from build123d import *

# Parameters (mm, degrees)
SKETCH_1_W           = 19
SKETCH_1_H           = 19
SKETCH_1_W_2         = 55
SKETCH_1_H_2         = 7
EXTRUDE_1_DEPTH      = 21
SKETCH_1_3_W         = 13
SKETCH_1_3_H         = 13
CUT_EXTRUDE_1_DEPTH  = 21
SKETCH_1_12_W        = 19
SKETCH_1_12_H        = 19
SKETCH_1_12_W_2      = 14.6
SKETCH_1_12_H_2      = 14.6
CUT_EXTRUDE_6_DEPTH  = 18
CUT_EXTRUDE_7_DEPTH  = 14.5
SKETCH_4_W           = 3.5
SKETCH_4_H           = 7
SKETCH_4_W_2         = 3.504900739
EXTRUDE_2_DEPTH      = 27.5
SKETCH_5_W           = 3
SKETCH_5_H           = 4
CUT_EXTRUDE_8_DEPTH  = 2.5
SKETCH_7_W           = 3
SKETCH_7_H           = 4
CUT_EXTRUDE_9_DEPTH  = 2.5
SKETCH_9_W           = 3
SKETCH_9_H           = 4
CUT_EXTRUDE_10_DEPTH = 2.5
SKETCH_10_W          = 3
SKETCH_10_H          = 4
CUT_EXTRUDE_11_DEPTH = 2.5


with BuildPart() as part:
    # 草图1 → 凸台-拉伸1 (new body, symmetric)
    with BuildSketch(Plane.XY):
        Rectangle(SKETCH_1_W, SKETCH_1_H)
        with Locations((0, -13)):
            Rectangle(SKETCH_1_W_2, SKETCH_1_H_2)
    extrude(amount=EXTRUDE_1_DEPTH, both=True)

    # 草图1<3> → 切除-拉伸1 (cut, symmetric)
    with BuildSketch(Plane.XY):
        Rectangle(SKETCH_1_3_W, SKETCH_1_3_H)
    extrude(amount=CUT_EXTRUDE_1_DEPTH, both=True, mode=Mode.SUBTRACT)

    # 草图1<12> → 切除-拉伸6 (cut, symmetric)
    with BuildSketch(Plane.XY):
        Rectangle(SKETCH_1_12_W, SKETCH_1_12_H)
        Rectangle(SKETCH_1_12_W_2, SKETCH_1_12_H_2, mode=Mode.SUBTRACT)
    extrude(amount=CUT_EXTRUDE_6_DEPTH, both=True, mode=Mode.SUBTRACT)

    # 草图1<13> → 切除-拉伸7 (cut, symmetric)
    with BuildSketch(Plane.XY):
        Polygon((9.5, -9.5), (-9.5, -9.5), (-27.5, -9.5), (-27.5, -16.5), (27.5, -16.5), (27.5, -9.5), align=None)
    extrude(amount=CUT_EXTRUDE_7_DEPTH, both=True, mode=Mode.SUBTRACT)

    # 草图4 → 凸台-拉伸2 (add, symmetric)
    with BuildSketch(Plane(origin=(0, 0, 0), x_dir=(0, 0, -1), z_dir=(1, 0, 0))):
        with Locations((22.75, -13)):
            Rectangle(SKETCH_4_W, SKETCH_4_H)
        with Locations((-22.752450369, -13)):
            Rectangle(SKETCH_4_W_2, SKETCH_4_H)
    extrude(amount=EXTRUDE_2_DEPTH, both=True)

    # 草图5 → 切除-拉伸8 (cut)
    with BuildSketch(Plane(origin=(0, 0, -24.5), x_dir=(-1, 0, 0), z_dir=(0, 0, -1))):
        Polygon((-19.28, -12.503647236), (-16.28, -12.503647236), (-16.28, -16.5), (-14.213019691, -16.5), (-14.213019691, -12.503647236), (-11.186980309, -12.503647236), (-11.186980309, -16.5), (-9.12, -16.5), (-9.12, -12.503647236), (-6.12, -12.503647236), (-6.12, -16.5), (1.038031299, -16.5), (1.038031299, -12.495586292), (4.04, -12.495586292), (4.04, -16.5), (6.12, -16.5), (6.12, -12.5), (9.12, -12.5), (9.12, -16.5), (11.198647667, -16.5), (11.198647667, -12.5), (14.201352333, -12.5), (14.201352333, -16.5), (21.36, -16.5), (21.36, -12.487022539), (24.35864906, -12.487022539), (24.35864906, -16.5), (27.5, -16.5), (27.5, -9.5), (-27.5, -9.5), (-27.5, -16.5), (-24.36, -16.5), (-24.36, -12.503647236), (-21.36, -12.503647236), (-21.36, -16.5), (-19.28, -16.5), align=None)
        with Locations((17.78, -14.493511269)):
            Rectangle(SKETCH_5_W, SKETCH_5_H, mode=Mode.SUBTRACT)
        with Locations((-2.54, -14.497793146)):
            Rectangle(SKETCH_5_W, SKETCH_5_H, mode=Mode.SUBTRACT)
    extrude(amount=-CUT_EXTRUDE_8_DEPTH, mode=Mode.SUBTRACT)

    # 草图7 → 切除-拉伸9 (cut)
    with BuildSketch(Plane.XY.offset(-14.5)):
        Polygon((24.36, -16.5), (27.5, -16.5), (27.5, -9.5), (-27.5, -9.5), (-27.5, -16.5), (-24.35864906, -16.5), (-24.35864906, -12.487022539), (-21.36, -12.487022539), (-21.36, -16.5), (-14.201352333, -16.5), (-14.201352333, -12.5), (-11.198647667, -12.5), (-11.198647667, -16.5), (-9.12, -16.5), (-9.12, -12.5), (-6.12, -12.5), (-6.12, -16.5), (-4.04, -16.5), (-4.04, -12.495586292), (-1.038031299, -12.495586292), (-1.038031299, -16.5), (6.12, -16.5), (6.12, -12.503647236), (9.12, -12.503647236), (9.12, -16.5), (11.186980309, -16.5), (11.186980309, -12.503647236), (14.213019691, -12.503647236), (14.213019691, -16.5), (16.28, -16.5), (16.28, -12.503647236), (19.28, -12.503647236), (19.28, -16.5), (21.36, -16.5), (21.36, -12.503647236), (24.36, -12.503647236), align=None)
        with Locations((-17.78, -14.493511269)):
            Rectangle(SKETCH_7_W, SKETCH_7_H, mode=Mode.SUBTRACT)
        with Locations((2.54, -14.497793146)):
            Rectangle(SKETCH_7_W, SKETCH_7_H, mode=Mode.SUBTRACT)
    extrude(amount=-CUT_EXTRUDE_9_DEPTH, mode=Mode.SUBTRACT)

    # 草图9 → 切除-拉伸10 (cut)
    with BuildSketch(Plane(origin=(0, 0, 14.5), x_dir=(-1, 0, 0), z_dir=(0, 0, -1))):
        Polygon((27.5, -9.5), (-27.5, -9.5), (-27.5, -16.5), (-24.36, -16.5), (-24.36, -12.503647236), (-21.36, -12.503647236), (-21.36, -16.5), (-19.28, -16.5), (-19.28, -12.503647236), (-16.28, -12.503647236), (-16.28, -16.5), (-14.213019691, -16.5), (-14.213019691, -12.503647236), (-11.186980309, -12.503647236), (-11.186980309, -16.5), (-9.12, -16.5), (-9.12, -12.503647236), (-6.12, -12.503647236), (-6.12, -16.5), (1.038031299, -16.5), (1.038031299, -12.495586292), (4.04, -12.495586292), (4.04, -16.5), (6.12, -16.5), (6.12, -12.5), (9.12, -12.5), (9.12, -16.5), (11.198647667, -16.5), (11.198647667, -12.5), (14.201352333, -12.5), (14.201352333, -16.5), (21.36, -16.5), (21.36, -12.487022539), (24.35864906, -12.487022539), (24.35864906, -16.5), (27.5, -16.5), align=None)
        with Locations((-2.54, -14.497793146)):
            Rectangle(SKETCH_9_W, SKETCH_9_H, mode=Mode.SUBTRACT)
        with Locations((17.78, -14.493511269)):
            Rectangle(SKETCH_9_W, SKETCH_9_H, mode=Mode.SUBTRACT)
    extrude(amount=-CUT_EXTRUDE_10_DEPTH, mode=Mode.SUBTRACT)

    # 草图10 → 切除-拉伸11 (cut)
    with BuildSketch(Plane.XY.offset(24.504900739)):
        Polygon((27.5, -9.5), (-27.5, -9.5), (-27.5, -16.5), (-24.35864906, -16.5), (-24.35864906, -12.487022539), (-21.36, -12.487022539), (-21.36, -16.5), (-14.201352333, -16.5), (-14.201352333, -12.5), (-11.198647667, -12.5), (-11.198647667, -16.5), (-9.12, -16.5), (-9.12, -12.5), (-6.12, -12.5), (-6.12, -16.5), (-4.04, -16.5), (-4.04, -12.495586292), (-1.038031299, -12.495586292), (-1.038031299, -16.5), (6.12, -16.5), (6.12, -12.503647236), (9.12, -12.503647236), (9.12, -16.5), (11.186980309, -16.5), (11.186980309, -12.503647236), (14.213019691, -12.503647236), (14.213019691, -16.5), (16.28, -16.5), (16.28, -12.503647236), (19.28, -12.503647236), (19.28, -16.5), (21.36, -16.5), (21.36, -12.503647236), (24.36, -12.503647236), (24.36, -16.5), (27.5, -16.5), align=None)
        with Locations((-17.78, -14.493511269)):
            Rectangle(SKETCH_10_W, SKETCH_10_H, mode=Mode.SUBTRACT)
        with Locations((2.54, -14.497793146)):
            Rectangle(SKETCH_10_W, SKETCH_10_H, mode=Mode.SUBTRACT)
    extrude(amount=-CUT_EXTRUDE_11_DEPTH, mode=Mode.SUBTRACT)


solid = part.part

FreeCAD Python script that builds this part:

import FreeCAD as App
import Part
import Sketcher
from FreeCAD import Vector
Q = App.Units.Quantity


def add_polygon(sketch, points):
    """Adds a closed chain of lines whose ends are joined by coincident constraints."""
    first, n = sketch.GeometryCount, len(points)
    for a, b in zip(points, points[1:] + points[:1]):
        sketch.addGeometry(Part.LineSegment(App.Vector(*a, 0), App.Vector(*b, 0)), False)
    for i in range(n):
        sketch.addConstraint(Sketcher.Constraint("Coincident", first + i, 2, first + (i + 1) % n, 1))

doc = App.newDocument("Part")
body = doc.addObject("PartDesign::Body", "Body")

# Sketch on XY plane
sketch1 = body.newObject("Sketcher::SketchObject", "Sketch")
sketch1.AttachmentSupport = (doc.getObject("XY_Plane"), [""])
sketch1.MapMode = "FlatFace"
add_polygon(sketch1, [(-10, 10), (-10, -10), (-28, -10), (-28, -16), (28, -16), (28, -10), (10, -10), (10, 10)])  # lines 0-7
sketch1.addConstraint([
    Sketcher.Constraint("Vertical", 0),
    Sketcher.Constraint("Horizontal", 1),
    Sketcher.Constraint("Vertical", 2),
    Sketcher.Constraint("Horizontal", 3),
    Sketcher.Constraint("Vertical", 4),
    Sketcher.Constraint("Horizontal", 5),
    Sketcher.Constraint("Vertical", 6),
    Sketcher.Constraint("Horizontal", 7),
    Sketcher.Constraint("Symmetric", 0, 2, 6, 2, -1, 1),
    Sketcher.Constraint("Symmetric", 1, 2, 4, 2, -2),
    Sketcher.Constraint("Equal", 7, 0),
    Sketcher.Constraint("DistanceX", 1, 2, 1, 1, Q("18 mm")),
    Sketcher.Constraint("DistanceX", 3, 1, 3, 2, Q("55 mm")),
    Sketcher.Constraint("DistanceY", 2, 2, 2, 1, Q("7 mm")),
])
pad1 = body.newObject("PartDesign::Pad", "Pad")
pad1.Profile = sketch1
pad1.Length = 42
pad1.Midplane = True

# Sketch on XY plane
sketch2 = body.newObject("Sketcher::SketchObject", "Sketch001")
sketch2.AttachmentSupport = (doc.getObject("XY_Plane"), [""])
sketch2.MapMode = "FlatFace"
add_polygon(sketch2, [(-6, 6), (-6, -6), (6, -6), (6, 6)])  # lines 0-3
sketch2.addConstraint([
    Sketcher.Constraint("Vertical", 0),
    Sketcher.Constraint("Horizontal", 1),
    Sketcher.Constraint("Vertical", 2),
    Sketcher.Constraint("Horizontal", 3),
    Sketcher.Constraint("Symmetric", 0, 2, 2, 2, -1, 1),
    Sketcher.Constraint("Equal", 3, 0),
    Sketcher.Constraint("DistanceX", 1, 1, 1, 2, Q("13 mm")),
])
pocket1 = body.newObject("PartDesign::Pocket", "Pocket")
pocket1.Profile = sketch2
pocket1.Length = 42
pocket1.Midplane = True

# Sketch on XY plane
sketch3 = body.newObject("Sketcher::SketchObject", "Sketch002")
sketch3.AttachmentSupport = (doc.getObject("XY_Plane"), [""])
sketch3.MapMode = "FlatFace"
add_polygon(sketch3, [(-10, 10), (-10, -10), (10, -10), (10, 10)])  # lines 0-3
add_polygon(sketch3, [(7, -7), (-7, -7), (-7, 7), (7, 7)])  # lines 4-7
sketch3.addConstraint([
    Sketcher.Constraint("Vertical", 0),
    Sketcher.Constraint("Horizontal", 1),
    Sketcher.Constraint("Vertical", 2),
    Sketcher.Constraint("Horizontal", 3),
    Sketcher.Constraint("Horizontal", 4),
    Sketcher.Constraint("Vertical", 5),
    Sketcher.Constraint("Horizontal", 6),
    Sketcher.Constraint("Vertical", 7),
    Sketcher.Constraint("Symmetric", 0, 2, 2, 2, -1, 1),
    Sketcher.Constraint("Symmetric", 4, 2, 6, 2, -1, 1),
    Sketcher.Constraint("Equal", 3, 0),
    Sketcher.Constraint("Equal", 6, 5),
    Sketcher.Constraint("DistanceX", 1, 1, 1, 2, Q("19 mm")),
    Sketcher.Constraint("DistanceX", 4, 2, 4, 1, Q("14.6 mm")),
])
pocket2 = body.newObject("PartDesign::Pocket", "Pocket001")
pocket2.Profile = sketch3
pocket2.Length = 36
pocket2.Midplane = True

# Sketch on XY plane
sketch4 = body.newObject("Sketcher::SketchObject", "Sketch003")
sketch4.AttachmentSupport = (doc.getObject("XY_Plane"), [""])
sketch4.MapMode = "FlatFace"
add_polygon(sketch4, [(-28, -10), (-28, -16), (28, -16), (28, -10)])  # lines 0-3
sketch4.addConstraint([
    Sketcher.Constraint("Vertical", 0),
    Sketcher.Constraint("Horizontal", 1),
    Sketcher.Constraint("Vertical", 2),
    Sketcher.Constraint("Horizontal", 3),
    Sketcher.Constraint("DistanceX", 1, 1, 1, 2, Q("55 mm")),
    Sketcher.Constraint("DistanceY", 0, 2, 0, 1, Q("7 mm")),
    Sketcher.Constraint("DistanceX", 0, 2, -1, 1, Q("27.5 mm")),
    Sketcher.Constraint("DistanceY", 0, 2, -1, 1, Q("16.5 mm")),
])
pocket3 = body.newObject("PartDesign::Pocket", "Pocket002")
pocket3.Profile = sketch4
pocket3.Length = 29
pocket3.Midplane = True

# Sketch on YZ plane
sketch5 = body.newObject("Sketcher::SketchObject", "Sketch004")
sketch5.AttachmentSupport = (doc.getObject("YZ_Plane"), [""])
sketch5.MapMode = "FlatFace"
add_polygon(sketch5, [(-9.5, -21), (-16.5, -21), (-16.5, -24.5), (-9.5, -24.5)])  # lines 0-3
add_polygon(sketch5, [(-9.5, 24.5), (-16.5, 24.5), (-16.5, 21), (-9.5, 21)])  # lines 4-7
sketch5.addConstraint([
    Sketcher.Constraint("Horizontal", 0),
    Sketcher.Constraint("Vertical", 1),
    Sketcher.Constraint("Horizontal", 2),
    Sketcher.Constraint("Vertical", 3),
    Sketcher.Constraint("Horizontal", 4),
    Sketcher.Constraint("Vertical", 5),
    Sketcher.Constraint("Horizontal", 6),
    Sketcher.Constraint("Vertical", 7),
    Sketcher.Constraint("Symmetric", 0, 2, 5, 2, -1),
    Sketcher.Constraint("Vertical", 3, 2, 6, 2),
    Sketcher.Constraint("DistanceX", 0, 2, 0, 1, Q("7 mm")),
    Sketcher.Constraint("DistanceY", 1, 2, 1, 1, Q("3.5 mm")),
    Sketcher.Constraint("DistanceY", 0, 2, -1, 1, Q("21 mm")),
    Sketcher.Constraint("DistanceX", 0, 2, -1, 1, Q("16.5 mm")),
    Sketcher.Constraint("DistanceY", 5, 2, 5, 1, Q("3.504901 mm")),
])
pad2 = body.newObject("PartDesign::Pad", "Pad001")
pad2.Profile = sketch5
pad2.Length = 55
pad2.Midplane = True

# Sketch on XY plane
sketch6 = body.newObject("Sketcher::SketchObject", "Sketch005")
sketch6.AttachmentSupport = (doc.getObject("XY_Plane"), [""])
sketch6.MapMode = "FlatFace"
sketch6.AttachmentOffset = App.Placement(Vector(0, 0, -24.5), App.Rotation())
add_polygon(sketch6, [(19.3, -12.5), (16.3, -12.5), (16.3, -16.5), (14.2, -16.5), (14.2, -12.5), (11.2, -12.5), (11.2, -16.5), (9.1, -16.5), (9.1, -12.5), (6.1, -12.5), (6.1, -16.5), (-1, -16.5), (-1, -12.5), (-4, -12.5), (-4, -16.5), (-6.1, -16.5), (-6.1, -12.5), (-9.1, -12.5), (-9.1, -16.5), (-11.2, -16.5), (-11.2, -12.5), (-14.2, -12.5), (-14.2, -16.5), (-21.4, -16.5), (-21.4, -12.5), (-24.4, -12.5), (-24.4, -16.5), (-27.5, -16.5), (-27.5, -9.5), (27.5, -9.5), (27.5, -16.5), (24.4, -16.5), (24.4, -12.5), (21.4, -12.5), (21.4, -16.5), (19.3, -16.5)])  # lines 0-35
add_polygon(sketch6, [(1, -16.5), (4, -16.5), (4, -12.5), (1, -12.5)])  # lines 36-39
add_polygon(sketch6, [(-19.3, -16.5), (-16.3, -16.5), (-16.3, -12.5), (-19.3, -12.5)])  # lines 40-43
sketch6.addConstraint([
    Sketcher.Constraint("Horizontal", 0),
    Sketcher.Constraint("Vertical", 1),
    Sketcher.Constraint("Horizontal", 2),
    Sketcher.Constraint("Vertical", 3),
    Sketcher.Constraint("Horizontal", 4),
    Sketcher.Constraint("Vertical", 5),
    Sketcher.Constraint("Horizontal", 6),
    Sketcher.Constraint("Vertical", 7),
    Sketcher.Constraint("Horizontal", 8),
    Sketcher.Constraint("Vertical", 9),
    Sketcher.Constraint("Horizontal", 10),
    Sketcher.Constraint("Vertical", 11),
    Sketcher.Constraint("Horizontal", 12),
    Sketcher.Constraint("Vertical", 13),
    Sketcher.Constraint("Horizontal", 14),
    Sketcher.Constraint("Vertical", 15),
    Sketcher.Constraint("Horizontal", 16),
    Sketcher.Constraint("Vertical", 17),
    Sketcher.Constraint("Horizontal", 18),
    Sketcher.Constraint("Vertical", 19),
    Sketcher.Constraint("Horizontal", 20),
    Sketcher.Constraint("Vertical", 21),
    Sketcher.Constraint("Horizontal", 22),
    Sketcher.Constraint("Vertical", 23),
    Sketcher.Constraint("Horizontal", 24),
    Sketcher.Constraint("Vertical", 25),
    Sketcher.Constraint("Horizontal", 26),
    Sketcher.Constraint("Vertical", 27),
    Sketcher.Constraint("Horizontal", 28),
    Sketcher.Constraint("Vertical", 29),
    Sketcher.Constraint("Horizontal", 30),
    Sketcher.Constraint("Vertical", 31),
    Sketcher.Constraint("Horizontal", 32),
    Sketcher.Constraint("Vertical", 33),
    Sketcher.Constraint("Horizontal", 34),
    Sketcher.Constraint("Vertical", 35),
    Sketcher.Constraint("Horizontal", 36),
    Sketcher.Constraint("Vertical", 37),
    Sketcher.Constraint("Horizontal", 38),
    Sketcher.Constraint("Vertical", 39),
    Sketcher.Constraint("Horizontal", 40),
    Sketcher.Constraint("Vertical", 41),
    Sketcher.Constraint("Horizontal", 42),
    Sketcher.Constraint("Vertical", 43),
    Sketcher.Constraint("Symmetric", 9, 2, 14, 2, -2),
    Sketcher.Constraint("Symmetric", 6, 2, 17, 2, -2),
    Sketcher.Constraint("Symmetric", 26, 2, 29, 2, -2),
    Sketcher.Constraint("Symmetric", 22, 2, 33, 2, -2),
    Sketcher.Constraint("Horizontal", 0, 2, 3, 2),
    Sketcher.Constraint("Horizontal", 2, 2, 5, 2),
    Sketcher.Constraint("Horizontal", 4, 2, 7, 2),
    Sketcher.Constraint("Horizontal", 6, 2, 9, 2),
    Sketcher.Constraint("Horizontal", 16, 2, 19, 2),
    Sketcher.Constraint("Horizontal", 18, 2, 21, 2),
    Sketcher.Constraint("Horizontal", 22, 2, 25, 2),
    Sketcher.Constraint("Horizontal", 8, 2, 31, 2),
    Sketcher.Constraint("Equal", 2, 6),
    Sketcher.Constraint("Equal", 0, 8),
    Sketcher.Constraint("Equal", 16, 32),
    Sketcher.Constraint("Equal", 14, 34),
    Sketcher.Constraint("Equal", 32, 36),
    Sketcher.Constraint("Equal", 38, 40),
    Sketcher.Constraint("Equal", 21, 37),
    Sketcher.Constraint("Equal", 39, 41),
    Sketcher.Constraint("DistanceX", 0, 2, 0, 1, Q("3 mm")),
    Sketcher.Constraint("DistanceX", 28, 1, 28, 2, Q("55 mm")),
    Sketcher.Constraint("DistanceY", 15, 1, 15, 2, Q("4 mm")),
    Sketcher.Constraint("DistanceY", 27, 1, 27, 2, Q("7 mm")),
    Sketcher.Constraint("DistanceX", 14, 2, 14, 1, Q("2.08 mm")),
    Sketcher.Constraint("DistanceX", 30, 2, 30, 1, Q("3.14 mm")),
    Sketcher.Constraint("DistanceY", 1, 2, -1, 1, Q("16.5 mm")),
    Sketcher.Constraint("DistanceX", -1, 1, 6, 2, Q("9.12 mm")),
    Sketcher.Constraint("DistanceX", -1, 1, 36, 2, Q("4.04 mm")),
    Sketcher.Constraint("DistanceX", 40, 2, -1, 1, Q("16.28 mm")),
    Sketcher.Constraint("DistanceX", 24, 2, 19, 2, Q("13.160001 mm")),
    Sketcher.Constraint("DistanceX", 2, 2, 2, 1, Q("2.06698 mm")),
    Sketcher.Constraint("DistanceX", 10, 2, 10, 1, Q("7.158031 mm")),
    Sketcher.Constraint("DistanceX", 24, 2, 24, 1, Q("2.998649 mm")),
    Sketcher.Constraint("DistanceX", 20, 2, 20, 1, Q("3.002705 mm")),
    Sketcher.Constraint("DistanceY", 1, 2, 1, 1, Q("3.996353 mm")),
    Sketcher.Constraint("DistanceY", 11, 1, 11, 2, Q("4.004414 mm")),
    Sketcher.Constraint("DistanceY", 23, 1, 23, 2, Q("4.012977 mm")),
    Sketcher.Constraint("DistanceY", 40, 2, -1, 1, Q("16.493511 mm")),
    Sketcher.Constraint("DistanceY", 36, 2, -1, 1, Q("16.497793 mm")),
])
pocket4 = body.newObject("PartDesign::Pocket", "Pocket003")
pocket4.Profile = sketch6
pocket4.Length = 2.5
pocket4.Reversed = True

# Sketch on XY plane
sketch7 = body.newObject("Sketcher::SketchObject", "Sketch006")
sketch7.AttachmentSupport = (doc.getObject("XY_Plane"), [""])
sketch7.MapMode = "FlatFace"
sketch7.AttachmentOffset = App.Placement(Vector(0, 0, -14.5), App.Rotation())
add_polygon(sketch7, [(24.4, -16.5), (27.5, -16.5), (27.5, -9.5), (-27.5, -9.5), (-27.5, -16.5), (-24.4, -16.5), (-24.4, -12.5), (-21.4, -12.5), (-21.4, -16.5), (-14.2, -16.5), (-14.2, -12.5), (-11.2, -12.5), (-11.2, -16.5), (-9.1, -16.5), (-9.1, -12.5), (-6.1, -12.5), (-6.1, -16.5), (-4, -16.5), (-4, -12.5), (-1, -12.5), (-1, -16.5), (6.1, -16.5), (6.1, -12.5), (9.1, -12.5), (9.1, -16.5), (11.2, -16.5), (11.2, -12.5), (14.2, -12.5), (14.2, -16.5), (16.3, -16.5), (16.3, -12.5), (19.3, -12.5), (19.3, -16.5), (21.4, -16.5), (21.4, -12.5), (24.4, -12.5)])  # lines 0-35
add_polygon(sketch7, [(4, -16.5), (1, -16.5), (1, -12.5), (4, -12.5)])  # lines 36-39
add_polygon(sketch7, [(-16.3, -16.5), (-19.3, -16.5), (-19.3, -12.5), (-16.3, -12.5)])  # lines 40-43
sketch7.addConstraint([
    Sketcher.Constraint("Horizontal", 0),
    Sketcher.Constraint("Vertical", 1),
    Sketcher.Constraint("Horizontal", 2),
    Sketcher.Constraint("Vertical", 3),
    Sketcher.Constraint("Horizontal", 4),
    Sketcher.Constraint("Vertical", 5),
    Sketcher.Constraint("Horizontal", 6),
    Sketcher.Constraint("Vertical", 7),
    Sketcher.Constraint("Horizontal", 8),
    Sketcher.Constraint("Vertical", 9),
    Sketcher.Constraint("Horizontal", 10),
    Sketcher.Constraint("Vertical", 11),
    Sketcher.Constraint("Horizontal", 12),
    Sketcher.Constraint("Vertical", 13),
    Sketcher.Constraint("Horizontal", 14),
    Sketcher.Constraint("Vertical", 15),
    Sketcher.Constraint("Horizontal", 16),
    Sketcher.Constraint("Vertical", 17),
    Sketcher.Constraint("Horizontal", 18),
    Sketcher.Constraint("Vertical", 19),
    Sketcher.Constraint("Horizontal", 20),
    Sketcher.Constraint("Vertical", 21),
    Sketcher.Constraint("Horizontal", 22),
    Sketcher.Constraint("Vertical", 23),
    Sketcher.Constraint("Horizontal", 24),
    Sketcher.Constraint("Vertical", 25),
    Sketcher.Constraint("Horizontal", 26),
    Sketcher.Constraint("Vertical", 27),
    Sketcher.Constraint("Horizontal", 28),
    Sketcher.Constraint("Vertical", 29),
    Sketcher.Constraint("Horizontal", 30),
    Sketcher.Constraint("Vertical", 31),
    Sketcher.Constraint("Horizontal", 32),
    Sketcher.Constraint("Vertical", 33),
    Sketcher.Constraint("Horizontal", 34),
    Sketcher.Constraint("Vertical", 35),
    Sketcher.Constraint("Horizontal", 36),
    Sketcher.Constraint("Vertical", 37),
    Sketcher.Constraint("Horizontal", 38),
    Sketcher.Constraint("Vertical", 39),
    Sketcher.Constraint("Horizontal", 40),
    Sketcher.Constraint("Vertical", 41),
    Sketcher.Constraint("Horizontal", 42),
    Sketcher.Constraint("Vertical", 43),
    Sketcher.Constraint("Symmetric", 0, 2, 3, 2, -2),
    Sketcher.Constraint("Symmetric", 15, 2, 20, 2, -2),
    Sketcher.Constraint("Symmetric", 12, 2, 23, 2, -2),
    Sketcher.Constraint("Symmetric", 7, 2, 32, 2, -2),
    Sketcher.Constraint("Horizontal", 4, 2, 7, 2),
    Sketcher.Constraint("Horizontal", 8, 2, 11, 2),
    Sketcher.Constraint("Horizontal", 10, 2, 13, 2),
    Sketcher.Constraint("Horizontal", 12, 2, 15, 2),
    Sketcher.Constraint("Horizontal", 22, 2, 25, 2),
    Sketcher.Constraint("Horizontal", 24, 2, 27, 2),
    Sketcher.Constraint("Horizontal", 26, 2, 29, 2),
    Sketcher.Constraint("Horizontal", 30, 2, 33, 2),
    Sketcher.Constraint("Equal", 24, 28),
    Sketcher.Constraint("Equal", 22, 30),
    Sketcher.Constraint("Equal", 16, 32),
    Sketcher.Constraint("Equal", 30, 34),
    Sketcher.Constraint("Equal", 34, 36),
    Sketcher.Constraint("Equal", 38, 40),
    Sketcher.Constraint("Equal", 15, 37),
    Sketcher.Constraint("Equal", 39, 41),
    Sketcher.Constraint("DistanceX", 2, 2, 2, 1, Q("55 mm")),
    Sketcher.Constraint("DistanceX", 14, 1, 14, 2, Q("3 mm")),
    Sketcher.Constraint("DistanceY", 1, 1, 1, 2, Q("7 mm")),
    Sketcher.Constraint("DistanceY", 9, 1, 9, 2, Q("4 mm")),
    Sketcher.Constraint("DistanceX", 0, 1, 0, 2, Q("3.14 mm")),
    Sketcher.Constraint("DistanceX", 16, 1, 16, 2, Q("2.08 mm")),
    Sketcher.Constraint("DistanceY", 0, 2, -1, 1, Q("16.5 mm")),
    Sketcher.Constraint("DistanceX", 12, 2, -1, 1, Q("9.12 mm")),
    Sketcher.Constraint("DistanceX", -1, 1, 36, 2, Q("1.04 mm")),
    Sketcher.Constraint("DistanceX", 40, 2, -1, 1, Q("19.28 mm")),
    Sketcher.Constraint("DistanceX", 5, 2, 10, 2, Q("13.160001 mm")),
    Sketcher.Constraint("DistanceX", 4, 1, 4, 2, Q("3.141351 mm")),
    Sketcher.Constraint("DistanceX", 18, 1, 18, 2, Q("3.001969 mm")),
    Sketcher.Constraint("DistanceX", 24, 1, 24, 2, Q("2.06698 mm")),
    Sketcher.Constraint("DistanceX", 8, 1, 8, 2, Q("7.158648 mm")),
    Sketcher.Constraint("DistanceY", 5, 1, 5, 2, Q("4.012977 mm")),
    Sketcher.Constraint("DistanceY", 17, 1, 17, 2, Q("4.004414 mm")),
    Sketcher.Constraint("DistanceY", 21, 1, 21, 2, Q("3.996353 mm")),
    Sketcher.Constraint("DistanceY", 40, 2, -1, 1, Q("16.493511 mm")),
    Sketcher.Constraint("DistanceY", 36, 2, -1, 1, Q("16.497793 mm")),
])
pocket5 = body.newObject("PartDesign::Pocket", "Pocket004")
pocket5.Profile = sketch7
pocket5.Length = 2.5

# Sketch on XY plane
sketch8 = body.newObject("Sketcher::SketchObject", "Sketch007")
sketch8.AttachmentSupport = (doc.getObject("XY_Plane"), [""])
sketch8.MapMode = "FlatFace"
sketch8.AttachmentOffset = App.Placement(Vector(0, 0, 14.5), App.Rotation())
add_polygon(sketch8, [(-27.5, -9.5), (27.5, -9.5), (27.5, -16.5), (24.4, -16.5), (24.4, -12.5), (21.4, -12.5), (21.4, -16.5), (19.3, -16.5), (19.3, -12.5), (16.3, -12.5), (16.3, -16.5), (14.2, -16.5), (14.2, -12.5), (11.2, -12.5), (11.2, -16.5), (9.1, -16.5), (9.1, -12.5), (6.1, -12.5), (6.1, -16.5), (-1, -16.5), (-1, -12.5), (-4, -12.5), (-4, -16.5), (-6.1, -16.5), (-6.1, -12.5), (-9.1, -12.5), (-9.1, -16.5), (-11.2, -16.5), (-11.2, -12.5), (-14.2, -12.5), (-14.2, -16.5), (-21.4, -16.5), (-21.4, -12.5), (-24.4, -12.5), (-24.4, -16.5), (-27.5, -16.5)])  # lines 0-35
add_polygon(sketch8, [(1, -16.5), (4, -16.5), (4, -12.5), (1, -12.5)])  # lines 36-39
add_polygon(sketch8, [(-19.3, -16.5), (-16.3, -16.5), (-16.3, -12.5), (-19.3, -12.5)])  # lines 40-43
sketch8.addConstraint([
    Sketcher.Constraint("Horizontal", 0),
    Sketcher.Constraint("Vertical", 1),
    Sketcher.Constraint("Horizontal", 2),
    Sketcher.Constraint("Vertical", 3),
    Sketcher.Constraint("Horizontal", 4),
    Sketcher.Constraint("Vertical", 5),
    Sketcher.Constraint("Horizontal", 6),
    Sketcher.Constraint("Vertical", 7),
    Sketcher.Constraint("Horizontal", 8),
    Sketcher.Constraint("Vertical", 9),
    Sketcher.Constraint("Horizontal", 10),
    Sketcher.Constraint("Vertical", 11),
    Sketcher.Constraint("Horizontal", 12),
    Sketcher.Constraint("Vertical", 13),
    Sketcher.Constraint("Horizontal", 14),
    Sketcher.Constraint("Vertical", 15),
    Sketcher.Constraint("Horizontal", 16),
    Sketcher.Constraint("Vertical", 17),
    Sketcher.Constraint("Horizontal", 18),
    Sketcher.Constraint("Vertical", 19),
    Sketcher.Constraint("Horizontal", 20),
    Sketcher.Constraint("Vertical", 21),
    Sketcher.Constraint("Horizontal", 22),
    Sketcher.Constraint("Vertical", 23),
    Sketcher.Constraint("Horizontal", 24),
    Sketcher.Constraint("Vertical", 25),
    Sketcher.Constraint("Horizontal", 26),
    Sketcher.Constraint("Vertical", 27),
    Sketcher.Constraint("Horizontal", 28),
    Sketcher.Constraint("Vertical", 29),
    Sketcher.Constraint("Horizontal", 30),
    Sketcher.Constraint("Vertical", 31),
    Sketcher.Constraint("Horizontal", 32),
    Sketcher.Constraint("Vertical", 33),
    Sketcher.Constraint("Horizontal", 34),
    Sketcher.Constraint("Vertical", 35),
    Sketcher.Constraint("Horizontal", 36),
    Sketcher.Constraint("Vertical", 37),
    Sketcher.Constraint("Horizontal", 38),
    Sketcher.Constraint("Vertical", 39),
    Sketcher.Constraint("Horizontal", 40),
    Sketcher.Constraint("Vertical", 41),
    Sketcher.Constraint("Horizontal", 42),
    Sketcher.Constraint("Vertical", 43),
    Sketcher.Constraint("Symmetric", 17, 2, 22, 2, -2),
    Sketcher.Constraint("Symmetric", 14, 2, 25, 2, -2),
    Sketcher.Constraint("Symmetric", 5, 2, 30, 2, -2),
    Sketcher.Constraint("Symmetric", 1, 2, 34, 2, -2),
    Sketcher.Constraint("Horizontal", 2, 2, 5, 2),
    Sketcher.Constraint("Horizontal", 4, 2, 7, 2),
    Sketcher.Constraint("Horizontal", 6, 2, 9, 2),
    Sketcher.Constraint("Horizontal", 8, 2, 11, 2),
    Sketcher.Constraint("Horizontal", 10, 2, 13, 2),
    Sketcher.Constraint("Horizontal", 12, 2, 15, 2),
    Sketcher.Constraint("Horizontal", 14, 2, 17, 2),
    Sketcher.Constraint("Horizontal", 24, 2, 27, 2),
    Sketcher.Constraint("Equal", 4, 8),
    Sketcher.Constraint("Equal", 10, 14),
    Sketcher.Constraint("Equal", 8, 16),
    Sketcher.Constraint("Equal", 6, 22),
    Sketcher.Constraint("Equal", 24, 36),
    Sketcher.Constraint("Equal", 38, 40),
    Sketcher.Constraint("Equal", 29, 37),
    Sketcher.Constraint("Equal", 39, 41),
    Sketcher.Constraint("DistanceX", 0, 1, 0, 2, Q("55 mm")),
    Sketcher.Constraint("DistanceX", 4, 2, 4, 1, Q("3 mm")),
    Sketcher.Constraint("DistanceY", 1, 2, 1, 1, Q("7 mm")),
    Sketcher.Constraint("DistanceY", 23, 1, 23, 2, Q("4 mm")),
    Sketcher.Constraint("DistanceX", 2, 2, 2, 1, Q("3.14 mm")),
    Sketcher.Constraint("DistanceX", 6, 2, 6, 1, Q("2.08 mm")),
    Sketcher.Constraint("DistanceY", 0, 2, -1, 1, Q("9.5 mm")),
    Sketcher.Constraint("DistanceX", -1, 1, 14, 2, Q("9.12 mm")),
    Sketcher.Constraint("DistanceX", -1, 1, 36, 2, Q("4.04 mm")),
    Sketcher.Constraint("DistanceX", 40, 2, -1, 1, Q("16.28 mm")),
    Sketcher.Constraint("DistanceX", 32, 2, 27, 2, Q("13.160001 mm")),
    Sketcher.Constraint("DistanceX", 10, 2, 10, 1, Q("2.06698 mm")),
    Sketcher.Constraint("DistanceX", 18, 2, 18, 1, Q("7.158031 mm")),
    Sketcher.Constraint("DistanceX", 32, 2, 32, 1, Q("2.998649 mm")),
    Sketcher.Constraint("DistanceX", 28, 2, 28, 1, Q("3.002705 mm")),
    Sketcher.Constraint("DistanceY", 3, 1, 3, 2, Q("3.996353 mm")),
    Sketcher.Constraint("DistanceY", 19, 1, 19, 2, Q("4.004414 mm")),
    Sketcher.Constraint("DistanceY", 31, 1, 31, 2, Q("4.012977 mm")),
    Sketcher.Constraint("DistanceY", 40, 2, -1, 1, Q("16.493511 mm")),
    Sketcher.Constraint("DistanceY", 36, 2, -1, 1, Q("16.497793 mm")),
])
pocket6 = body.newObject("PartDesign::Pocket", "Pocket005")
pocket6.Profile = sketch8
pocket6.Length = 2.5
pocket6.Reversed = True

# Sketch on XY plane
sketch9 = body.newObject("Sketcher::SketchObject", "Sketch008")
sketch9.AttachmentSupport = (doc.getObject("XY_Plane"), [""])
sketch9.MapMode = "FlatFace"
sketch9.AttachmentOffset = App.Placement(Vector(0, 0, 24.504901), App.Rotation())
add_polygon(sketch9, [(27.5, -9.5), (-27.5, -9.5), (-27.5, -16.5), (-24.4, -16.5), (-24.4, -12.5), (-21.4, -12.5), (-21.4, -16.5), (-14.2, -16.5), (-14.2, -12.5), (-11.2, -12.5), (-11.2, -16.5), (-9.1, -16.5), (-9.1, -12.5), (-6.1, -12.5), (-6.1, -16.5), (-4, -16.5), (-4, -12.5), (-1, -12.5), (-1, -16.5), (6.1, -16.5), (6.1, -12.5), (9.1, -12.5), (9.1, -16.5), (11.2, -16.5), (11.2, -12.5), (14.2, -12.5), (14.2, -16.5), (16.3, -16.5), (16.3, -12.5), (19.3, -12.5), (19.3, -16.5), (21.4, -16.5), (21.4, -12.5), (24.4, -12.5), (24.4, -16.5), (27.5, -16.5)])  # lines 0-35
add_polygon(sketch9, [(4, -16.5), (1, -16.5), (1, -12.5), (4, -12.5)])  # lines 36-39
add_polygon(sketch9, [(-16.3, -16.5), (-19.3, -16.5), (-19.3, -12.5), (-16.3, -12.5)])  # lines 40-43
sketch9.addConstraint([
    Sketcher.Constraint("Horizontal", 0),
    Sketcher.Constraint("Vertical", 1),
    Sketcher.Constraint("Horizontal", 2),
    Sketcher.Constraint("Vertical", 3),
    Sketcher.Constraint("Horizontal", 4),
    Sketcher.Constraint("Vertical", 5),
    Sketcher.Constraint("Horizontal", 6),
    Sketcher.Constraint("Vertical", 7),
    Sketcher.Constraint("Horizontal", 8),
    Sketcher.Constraint("Vertical", 9),
    Sketcher.Constraint("Horizontal", 10),
    Sketcher.Constraint("Vertical", 11),
    Sketcher.Constraint("Horizontal", 12),
    Sketcher.Constraint("Vertical", 13),
    Sketcher.Constraint("Horizontal", 14),
    Sketcher.Constraint("Vertical", 15),
    Sketcher.Constraint("Horizontal", 16),
    Sketcher.Constraint("Vertical", 17),
    Sketcher.Constraint("Horizontal", 18),
    Sketcher.Constraint("Vertical", 19),
    Sketcher.Constraint("Horizontal", 20),
    Sketcher.Constraint("Vertical", 21),
    Sketcher.Constraint("Horizontal", 22),
    Sketcher.Constraint("Vertical", 23),
    Sketcher.Constraint("Horizontal", 24),
    Sketcher.Constraint("Vertical", 25),
    Sketcher.Constraint("Horizontal", 26),
    Sketcher.Constraint("Vertical", 27),
    Sketcher.Constraint("Horizontal", 28),
    Sketcher.Constraint("Vertical", 29),
    Sketcher.Constraint("Horizontal", 30),
    Sketcher.Constraint("Vertical", 31),
    Sketcher.Constraint("Horizontal", 32),
    Sketcher.Constraint("Vertical", 33),
    Sketcher.Constraint("Horizontal", 34),
    Sketcher.Constraint("Vertical", 35),
    Sketcher.Constraint("Horizontal", 36),
    Sketcher.Constraint("Vertical", 37),
    Sketcher.Constraint("Horizontal", 38),
    Sketcher.Constraint("Vertical", 39),
    Sketcher.Constraint("Horizontal", 40),
    Sketcher.Constraint("Vertical", 41),
    Sketcher.Constraint("Horizontal", 42),
    Sketcher.Constraint("Vertical", 43),
    Sketcher.Constraint("Symmetric", 13, 2, 18, 2, -2),
    Sketcher.Constraint("Symmetric", 10, 2, 21, 2, -2),
    Sketcher.Constraint("Symmetric", 5, 2, 30, 2, -2),
    Sketcher.Constraint("Symmetric", 1, 2, 34, 2, -2),
    Sketcher.Constraint("Horizontal", 2, 2, 5, 2),
    Sketcher.Constraint("Horizontal", 6, 2, 9, 2),
    Sketcher.Constraint("Horizontal", 8, 2, 11, 2),
    Sketcher.Constraint("Horizontal", 10, 2, 13, 2),
    Sketcher.Constraint("Horizontal", 20, 2, 23, 2),
    Sketcher.Constraint("Horizontal", 22, 2, 25, 2),
    Sketcher.Constraint("Horizontal", 24, 2, 27, 2),
    Sketcher.Constraint("Horizontal", 28, 2, 31, 2),
    Sketcher.Constraint("Equal", 22, 26),
    Sketcher.Constraint("Equal", 20, 28),
    Sketcher.Constraint("Equal", 14, 30),
    Sketcher.Constraint("Equal", 28, 32),
    Sketcher.Constraint("Equal", 32, 36),
    Sketcher.Constraint("Equal", 38, 40),
    Sketcher.Constraint("Equal", 13, 37),
    Sketcher.Constraint("Equal", 39, 41),
    Sketcher.Constraint("DistanceX", 0, 2, 0, 1, Q("55 mm")),
    Sketcher.Constraint("DistanceX", 12, 1, 12, 2, Q("3 mm")),
    Sketcher.Constraint("DistanceY", 1, 2, 1, 1, Q("7 mm")),
    Sketcher.Constraint("DistanceY", 7, 1, 7, 2, Q("4 mm")),
    Sketcher.Constraint("DistanceX", 14, 1, 14, 2, Q("2.08 mm")),
    Sketcher.Constraint("DistanceX", 34, 1, 34, 2, Q("3.14 mm")),
    Sketcher.Constraint("DistanceY", 0, 2, -1, 1, Q("9.5 mm")),
    Sketcher.Constraint("DistanceX", 10, 2, -1, 1, Q("9.12 mm")),
    Sketcher.Constraint("DistanceX", -1, 1, 36, 2, Q("1.04 mm")),
    Sketcher.Constraint("DistanceX", 40, 2, -1, 1, Q("19.28 mm")),
    Sketcher.Constraint("DistanceX", 3, 2, 8, 2, Q("13.160001 mm")),
    Sketcher.Constraint("DistanceX", 2, 1, 2, 2, Q("3.141351 mm")),
    Sketcher.Constraint("DistanceX", 16, 1, 16, 2, Q("3.001969 mm")),
    Sketcher.Constraint("DistanceX", 22, 1, 22, 2, Q("2.06698 mm")),
    Sketcher.Constraint("DistanceX", 6, 1, 6, 2, Q("7.158648 mm")),
    Sketcher.Constraint("DistanceY", 3, 1, 3, 2, Q("4.012977 mm")),
    Sketcher.Constraint("DistanceY", 15, 1, 15, 2, Q("4.004414 mm")),
    Sketcher.Constraint("DistanceY", 19, 1, 19, 2, Q("3.996353 mm")),
    Sketcher.Constraint("DistanceY", 40, 2, -1, 1, Q("16.493511 mm")),
    Sketcher.Constraint("DistanceY", 36, 2, -1, 1, Q("16.497793 mm")),
])
pocket7 = body.newObject("PartDesign::Pocket", "Pocket006")
pocket7.Profile = sketch9
pocket7.Length = 2.5

doc.recompute()
